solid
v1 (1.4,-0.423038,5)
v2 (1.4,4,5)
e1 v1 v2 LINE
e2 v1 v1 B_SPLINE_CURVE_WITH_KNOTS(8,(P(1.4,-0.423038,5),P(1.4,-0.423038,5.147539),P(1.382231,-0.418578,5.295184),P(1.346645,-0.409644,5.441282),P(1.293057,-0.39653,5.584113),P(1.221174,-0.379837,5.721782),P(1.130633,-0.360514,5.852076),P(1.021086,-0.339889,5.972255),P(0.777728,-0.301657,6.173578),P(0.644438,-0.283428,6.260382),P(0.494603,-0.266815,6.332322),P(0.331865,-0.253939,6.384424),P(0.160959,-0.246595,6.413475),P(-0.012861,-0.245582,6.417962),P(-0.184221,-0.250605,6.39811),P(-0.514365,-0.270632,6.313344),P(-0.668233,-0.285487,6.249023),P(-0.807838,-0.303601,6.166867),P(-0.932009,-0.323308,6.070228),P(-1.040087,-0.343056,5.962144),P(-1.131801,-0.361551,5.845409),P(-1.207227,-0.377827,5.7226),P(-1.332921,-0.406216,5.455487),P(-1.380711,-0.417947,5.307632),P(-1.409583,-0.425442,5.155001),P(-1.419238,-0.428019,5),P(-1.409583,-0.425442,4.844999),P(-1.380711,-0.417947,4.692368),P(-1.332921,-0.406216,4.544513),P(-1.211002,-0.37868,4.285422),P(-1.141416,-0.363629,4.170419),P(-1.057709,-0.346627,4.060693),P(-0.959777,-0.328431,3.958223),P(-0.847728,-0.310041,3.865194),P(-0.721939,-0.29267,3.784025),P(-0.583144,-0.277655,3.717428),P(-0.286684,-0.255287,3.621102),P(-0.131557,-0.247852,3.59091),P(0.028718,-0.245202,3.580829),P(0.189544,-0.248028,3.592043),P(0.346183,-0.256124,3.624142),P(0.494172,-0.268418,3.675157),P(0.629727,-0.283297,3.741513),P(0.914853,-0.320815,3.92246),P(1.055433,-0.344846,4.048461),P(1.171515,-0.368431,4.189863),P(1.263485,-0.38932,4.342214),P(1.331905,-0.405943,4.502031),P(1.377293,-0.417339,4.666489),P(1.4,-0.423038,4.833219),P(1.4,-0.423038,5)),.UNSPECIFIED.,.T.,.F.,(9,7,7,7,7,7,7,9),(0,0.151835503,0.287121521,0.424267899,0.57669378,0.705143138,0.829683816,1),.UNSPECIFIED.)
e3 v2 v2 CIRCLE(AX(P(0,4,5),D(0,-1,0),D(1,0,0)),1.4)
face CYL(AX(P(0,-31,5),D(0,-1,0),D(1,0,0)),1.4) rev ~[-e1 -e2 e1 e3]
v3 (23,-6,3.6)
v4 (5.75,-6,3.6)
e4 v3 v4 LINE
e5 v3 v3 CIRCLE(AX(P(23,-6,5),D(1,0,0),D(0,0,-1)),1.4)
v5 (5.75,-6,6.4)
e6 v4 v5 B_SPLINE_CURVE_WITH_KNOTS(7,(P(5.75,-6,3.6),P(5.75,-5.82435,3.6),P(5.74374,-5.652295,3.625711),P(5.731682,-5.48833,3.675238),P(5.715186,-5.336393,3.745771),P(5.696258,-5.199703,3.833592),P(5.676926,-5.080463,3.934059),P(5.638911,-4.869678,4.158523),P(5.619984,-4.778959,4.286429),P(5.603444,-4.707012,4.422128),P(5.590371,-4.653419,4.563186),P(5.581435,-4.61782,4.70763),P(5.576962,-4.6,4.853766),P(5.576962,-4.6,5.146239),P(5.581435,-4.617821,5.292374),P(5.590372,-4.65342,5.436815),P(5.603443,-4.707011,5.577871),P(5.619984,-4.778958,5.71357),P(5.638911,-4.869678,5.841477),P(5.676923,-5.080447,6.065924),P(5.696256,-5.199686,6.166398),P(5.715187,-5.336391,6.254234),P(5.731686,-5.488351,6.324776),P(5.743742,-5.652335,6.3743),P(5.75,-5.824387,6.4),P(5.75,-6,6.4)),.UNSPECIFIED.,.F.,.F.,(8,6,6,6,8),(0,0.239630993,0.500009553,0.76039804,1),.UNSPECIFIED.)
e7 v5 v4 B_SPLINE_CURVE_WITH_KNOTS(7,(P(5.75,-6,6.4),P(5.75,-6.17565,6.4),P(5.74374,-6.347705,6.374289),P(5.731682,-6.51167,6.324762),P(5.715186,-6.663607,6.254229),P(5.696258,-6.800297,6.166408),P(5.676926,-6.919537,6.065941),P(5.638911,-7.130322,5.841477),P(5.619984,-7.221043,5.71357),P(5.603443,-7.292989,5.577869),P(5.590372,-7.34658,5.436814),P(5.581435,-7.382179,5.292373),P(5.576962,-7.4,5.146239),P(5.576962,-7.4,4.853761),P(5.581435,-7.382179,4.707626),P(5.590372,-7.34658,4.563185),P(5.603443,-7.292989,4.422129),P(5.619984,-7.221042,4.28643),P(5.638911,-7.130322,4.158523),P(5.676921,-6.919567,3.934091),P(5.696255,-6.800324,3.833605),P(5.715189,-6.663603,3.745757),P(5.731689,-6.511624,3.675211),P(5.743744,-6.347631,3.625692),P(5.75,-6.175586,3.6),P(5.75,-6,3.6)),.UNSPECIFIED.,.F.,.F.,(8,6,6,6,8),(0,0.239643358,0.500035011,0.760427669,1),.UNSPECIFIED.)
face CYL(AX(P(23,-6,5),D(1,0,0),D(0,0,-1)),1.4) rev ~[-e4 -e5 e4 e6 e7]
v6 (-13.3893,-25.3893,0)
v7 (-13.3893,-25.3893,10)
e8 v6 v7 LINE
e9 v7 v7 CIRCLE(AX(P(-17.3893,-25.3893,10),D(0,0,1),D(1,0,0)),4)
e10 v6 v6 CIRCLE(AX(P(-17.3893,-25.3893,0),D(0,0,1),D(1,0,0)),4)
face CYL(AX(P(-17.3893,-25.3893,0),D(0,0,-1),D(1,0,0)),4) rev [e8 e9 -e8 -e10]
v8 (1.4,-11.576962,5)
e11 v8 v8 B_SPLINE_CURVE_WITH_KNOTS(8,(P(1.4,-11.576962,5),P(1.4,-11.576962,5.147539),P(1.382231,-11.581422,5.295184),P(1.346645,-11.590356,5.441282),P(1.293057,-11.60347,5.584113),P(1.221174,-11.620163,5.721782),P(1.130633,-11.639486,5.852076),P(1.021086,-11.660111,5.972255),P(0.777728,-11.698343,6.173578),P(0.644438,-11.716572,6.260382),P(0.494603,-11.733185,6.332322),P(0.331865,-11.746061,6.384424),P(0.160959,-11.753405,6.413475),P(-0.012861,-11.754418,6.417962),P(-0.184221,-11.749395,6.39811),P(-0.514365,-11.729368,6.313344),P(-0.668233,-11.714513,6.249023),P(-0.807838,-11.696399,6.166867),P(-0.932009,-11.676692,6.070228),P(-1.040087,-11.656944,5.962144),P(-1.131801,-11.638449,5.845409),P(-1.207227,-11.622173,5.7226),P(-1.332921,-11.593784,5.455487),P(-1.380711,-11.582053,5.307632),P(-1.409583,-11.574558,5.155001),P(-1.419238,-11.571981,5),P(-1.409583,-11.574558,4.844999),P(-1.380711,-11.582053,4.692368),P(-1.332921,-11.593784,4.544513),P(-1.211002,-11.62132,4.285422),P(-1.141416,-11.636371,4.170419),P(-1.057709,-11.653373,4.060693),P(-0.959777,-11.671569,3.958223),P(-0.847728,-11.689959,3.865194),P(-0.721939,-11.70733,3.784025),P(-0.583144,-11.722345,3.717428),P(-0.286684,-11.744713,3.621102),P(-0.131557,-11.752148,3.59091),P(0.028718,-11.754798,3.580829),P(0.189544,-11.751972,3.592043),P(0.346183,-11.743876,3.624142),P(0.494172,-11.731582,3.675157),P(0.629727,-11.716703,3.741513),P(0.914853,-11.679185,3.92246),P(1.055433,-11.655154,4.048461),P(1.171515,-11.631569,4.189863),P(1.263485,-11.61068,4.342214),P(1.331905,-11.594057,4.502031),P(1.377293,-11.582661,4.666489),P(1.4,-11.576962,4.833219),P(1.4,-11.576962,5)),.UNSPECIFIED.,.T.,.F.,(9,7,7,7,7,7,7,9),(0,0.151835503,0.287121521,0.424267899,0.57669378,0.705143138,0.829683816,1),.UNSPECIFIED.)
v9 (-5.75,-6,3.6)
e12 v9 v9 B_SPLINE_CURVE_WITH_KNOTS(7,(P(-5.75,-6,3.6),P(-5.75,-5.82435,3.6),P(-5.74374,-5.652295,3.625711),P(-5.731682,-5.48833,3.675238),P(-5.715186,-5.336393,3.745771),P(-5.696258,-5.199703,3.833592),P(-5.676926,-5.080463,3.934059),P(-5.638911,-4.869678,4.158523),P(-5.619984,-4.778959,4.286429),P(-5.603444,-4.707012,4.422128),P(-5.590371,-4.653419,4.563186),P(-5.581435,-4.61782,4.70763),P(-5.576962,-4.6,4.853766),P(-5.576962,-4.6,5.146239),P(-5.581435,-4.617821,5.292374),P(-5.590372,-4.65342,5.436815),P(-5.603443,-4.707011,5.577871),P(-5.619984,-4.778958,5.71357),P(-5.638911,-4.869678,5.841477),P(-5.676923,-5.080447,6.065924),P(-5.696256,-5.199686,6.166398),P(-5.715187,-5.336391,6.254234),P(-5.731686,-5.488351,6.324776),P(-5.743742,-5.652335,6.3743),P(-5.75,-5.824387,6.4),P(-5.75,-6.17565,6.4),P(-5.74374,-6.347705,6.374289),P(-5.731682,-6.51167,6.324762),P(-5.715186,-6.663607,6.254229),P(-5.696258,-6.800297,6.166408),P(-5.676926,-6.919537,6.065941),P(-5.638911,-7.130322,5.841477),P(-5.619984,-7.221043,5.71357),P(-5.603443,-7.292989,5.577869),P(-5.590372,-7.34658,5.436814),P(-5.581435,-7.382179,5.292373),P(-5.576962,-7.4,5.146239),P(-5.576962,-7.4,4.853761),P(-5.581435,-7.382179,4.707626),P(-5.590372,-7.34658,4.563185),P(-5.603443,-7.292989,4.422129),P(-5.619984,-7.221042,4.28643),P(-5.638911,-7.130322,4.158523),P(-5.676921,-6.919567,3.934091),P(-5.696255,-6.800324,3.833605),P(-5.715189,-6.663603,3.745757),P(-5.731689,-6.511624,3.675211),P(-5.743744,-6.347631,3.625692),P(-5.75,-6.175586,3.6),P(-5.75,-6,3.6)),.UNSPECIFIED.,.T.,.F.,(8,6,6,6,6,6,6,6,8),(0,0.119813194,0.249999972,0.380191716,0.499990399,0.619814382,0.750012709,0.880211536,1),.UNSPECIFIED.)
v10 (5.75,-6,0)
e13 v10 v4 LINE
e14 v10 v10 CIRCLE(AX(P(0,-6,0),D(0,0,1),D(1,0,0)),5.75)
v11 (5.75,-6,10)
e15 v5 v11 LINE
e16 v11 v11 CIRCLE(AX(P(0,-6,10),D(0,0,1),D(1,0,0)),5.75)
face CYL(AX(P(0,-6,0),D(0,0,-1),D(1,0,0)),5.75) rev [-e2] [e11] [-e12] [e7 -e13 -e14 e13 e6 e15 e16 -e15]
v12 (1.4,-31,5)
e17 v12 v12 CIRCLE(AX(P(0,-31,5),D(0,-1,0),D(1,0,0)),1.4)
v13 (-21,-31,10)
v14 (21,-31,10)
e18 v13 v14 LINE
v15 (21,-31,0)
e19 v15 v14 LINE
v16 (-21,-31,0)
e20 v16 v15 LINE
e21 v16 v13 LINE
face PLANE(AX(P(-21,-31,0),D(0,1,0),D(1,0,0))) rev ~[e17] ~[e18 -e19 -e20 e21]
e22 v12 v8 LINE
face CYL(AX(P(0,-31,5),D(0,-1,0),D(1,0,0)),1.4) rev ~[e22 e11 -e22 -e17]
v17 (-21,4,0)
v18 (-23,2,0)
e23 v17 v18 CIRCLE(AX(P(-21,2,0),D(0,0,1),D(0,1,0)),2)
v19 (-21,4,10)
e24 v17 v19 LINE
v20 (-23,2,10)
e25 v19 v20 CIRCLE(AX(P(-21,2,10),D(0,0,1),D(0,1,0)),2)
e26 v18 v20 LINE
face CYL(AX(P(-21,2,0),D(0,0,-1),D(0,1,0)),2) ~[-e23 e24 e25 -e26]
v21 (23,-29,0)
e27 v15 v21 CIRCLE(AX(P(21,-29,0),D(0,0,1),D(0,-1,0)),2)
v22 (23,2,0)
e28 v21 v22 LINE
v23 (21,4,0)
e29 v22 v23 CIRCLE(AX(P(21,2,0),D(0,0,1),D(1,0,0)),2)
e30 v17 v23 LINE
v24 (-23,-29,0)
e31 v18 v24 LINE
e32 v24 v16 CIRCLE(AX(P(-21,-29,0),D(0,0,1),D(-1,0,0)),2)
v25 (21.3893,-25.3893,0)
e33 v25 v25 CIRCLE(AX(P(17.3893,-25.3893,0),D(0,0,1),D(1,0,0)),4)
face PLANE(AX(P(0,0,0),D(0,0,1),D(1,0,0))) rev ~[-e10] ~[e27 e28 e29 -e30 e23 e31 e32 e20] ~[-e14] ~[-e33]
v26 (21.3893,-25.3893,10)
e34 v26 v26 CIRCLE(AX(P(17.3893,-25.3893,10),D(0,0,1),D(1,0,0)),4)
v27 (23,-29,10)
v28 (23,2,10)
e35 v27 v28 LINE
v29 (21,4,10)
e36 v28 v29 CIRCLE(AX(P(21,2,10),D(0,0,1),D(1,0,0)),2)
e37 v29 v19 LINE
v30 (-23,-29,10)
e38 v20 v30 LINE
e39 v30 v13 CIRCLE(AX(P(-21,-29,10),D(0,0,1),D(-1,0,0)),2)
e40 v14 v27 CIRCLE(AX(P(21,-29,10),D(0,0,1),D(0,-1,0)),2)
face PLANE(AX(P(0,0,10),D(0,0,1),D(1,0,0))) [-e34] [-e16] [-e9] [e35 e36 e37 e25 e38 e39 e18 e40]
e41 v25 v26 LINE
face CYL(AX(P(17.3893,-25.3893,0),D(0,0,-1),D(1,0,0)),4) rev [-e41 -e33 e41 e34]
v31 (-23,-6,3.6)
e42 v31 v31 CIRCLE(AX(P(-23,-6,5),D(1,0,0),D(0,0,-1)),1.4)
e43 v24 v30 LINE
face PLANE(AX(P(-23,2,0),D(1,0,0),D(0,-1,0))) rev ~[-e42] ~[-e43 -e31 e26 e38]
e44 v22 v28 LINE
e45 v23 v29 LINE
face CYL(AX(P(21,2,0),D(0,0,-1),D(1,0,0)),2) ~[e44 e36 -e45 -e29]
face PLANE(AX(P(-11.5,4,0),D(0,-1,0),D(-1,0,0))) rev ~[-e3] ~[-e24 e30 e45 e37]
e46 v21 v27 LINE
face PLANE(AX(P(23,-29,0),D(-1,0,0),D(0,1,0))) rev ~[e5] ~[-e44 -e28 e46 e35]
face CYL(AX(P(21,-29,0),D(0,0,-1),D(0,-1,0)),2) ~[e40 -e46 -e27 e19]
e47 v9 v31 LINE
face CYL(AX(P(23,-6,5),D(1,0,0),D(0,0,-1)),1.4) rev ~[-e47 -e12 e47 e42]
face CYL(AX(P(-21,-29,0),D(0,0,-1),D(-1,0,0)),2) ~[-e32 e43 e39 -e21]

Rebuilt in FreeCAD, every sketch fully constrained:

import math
import FreeCAD as App
import Part
import Sketcher

doc = App.newDocument("Part")
body = doc.addObject("PartDesign::Body", "Body")

# Sketch on XY plane
sketch1 = doc.addObject("Sketcher::SketchObject", "Sketch")
body.addObject(sketch1)
sketch1.AttachmentSupport = (doc.XY_Plane, [""])
sketch1.MapMode = "FlatFace"
sketch1.addGeometry([
    Part.LineSegment(App.Vector(-21, -31, 0), App.Vector(21, -31, 0)),  # 0
    Part.ArcOfCircle(Part.Circle(App.Vector(21, -29, 0), App.Vector(0, 0, 1), 2), math.radians(-90), math.radians(0)),  # 1
    Part.LineSegment(App.Vector(23, -29, 0), App.Vector(23, 2, 0)),  # 2
    Part.ArcOfCircle(Part.Circle(App.Vector(21, 2, 0), App.Vector(0, 0, 1), 2), math.radians(0), math.radians(90)),  # 3
    Part.LineSegment(App.Vector(21, 4, 0), App.Vector(-21, 4, 0)),  # 4
    Part.ArcOfCircle(Part.Circle(App.Vector(-21, 2, 0), App.Vector(0, 0, 1), 2), math.radians(90), math.radians(180)),  # 5
    Part.LineSegment(App.Vector(-23, 2, 0), App.Vector(-23, -29, 0)),  # 6
    Part.ArcOfCircle(Part.Circle(App.Vector(-21, -29, 0), App.Vector(0, 0, 1), 2), math.radians(180), math.radians(270)),  # 7
    Part.Circle(App.Vector(-17.3893, -25.3893, 0), App.Vector(0, 0, 1), 4),  # 8
    Part.Circle(App.Vector(17.3893, -25.3893, 0), App.Vector(0, 0, 1), 4),  # 9
    Part.Circle(App.Vector(0, -6, 0), App.Vector(0, 0, 1), 5.75),  # 10
], False)
sketch1.addConstraint([
    Sketcher.Constraint("Tangent", 0, 2, 1, 1),
    Sketcher.Constraint("Tangent", 1, 2, 2, 1),
    Sketcher.Constraint("Tangent", 2, 2, 3, 1),
    Sketcher.Constraint("Tangent", 3, 2, 4, 1),
    Sketcher.Constraint("Tangent", 4, 2, 5, 1),
    Sketcher.Constraint("Tangent", 5, 2, 6, 1),
    Sketcher.Constraint("Tangent", 6, 2, 7, 1),
    Sketcher.Constraint("Tangent", 7, 2, 0, 1),
    Sketcher.Constraint("Horizontal", 0),
    Sketcher.Constraint("Vertical", 2),
    Sketcher.Constraint("Horizontal", 4),
    Sketcher.Constraint("Vertical", 6),
    Sketcher.Constraint("Equal", 1, 3),
    Sketcher.Constraint("Equal", 3, 5),
    Sketcher.Constraint("Equal", 5, 7),
    Sketcher.Constraint("Equal", 8, 9),
    Sketcher.Constraint("Symmetric", 8, 3, 9, 3, -2),
    Sketcher.Constraint("PointOnObject", 10, 3, -2),
    Sketcher.Constraint("Diameter", 8, 8.0),
    Sketcher.Constraint("Radius", 1, 2.0),
    Sketcher.Constraint("Diameter", 10, 11.5),
    Sketcher.Constraint("DistanceY", -1, 1, 3, 3, 2.0),
    Sketcher.Constraint("DistanceY", 10, 3, 3, 3, 8.0),
    Sketcher.Constraint("DistanceY", 0, 2, 10, 3, 25.0),
    Sketcher.Constraint("DistanceX", 0, 1, 0, 2, 42.0),
    Sketcher.Constraint("DistanceX", -1, 1, 1, 3, 21.0),
    Sketcher.Constraint("DistanceX", 8, 3, -1, 1, 17.3893),
    Sketcher.Constraint("DistanceY", 8, 3, -1, 1, 25.3893),
])
pad1 = doc.addObject("PartDesign::Pad", "Pad")
body.addObject(pad1)
pad1.Profile = sketch1
pad1.Length = 10

# Sketch on YZ plane
sketch2 = doc.addObject("Sketcher::SketchObject", "Sketch001")
body.addObject(sketch2)
sketch2.AttachmentSupport = (doc.YZ_Plane, [""])
sketch2.MapMode = "FlatFace"
sketch2.AttachmentOffset = App.Placement(App.Vector(0, 0, 23), App.Rotation())
sketch2.addGeometry(Part.Circle(App.Vector(-6, 5, 0), App.Vector(0, 0, 1), 1.4), False)
sketch2.addConstraint([
    Sketcher.Constraint("Diameter", 0, 2.8),
    Sketcher.Constraint("DistanceX", 0, 3, -1, 1, 6.0),
    Sketcher.Constraint("DistanceY", -1, 1, 0, 3, 5.0),
])
pocket1 = doc.addObject("PartDesign::Pocket", "Pocket")
body.addObject(pocket1)
pocket1.Profile = sketch2
pocket1.Type = "ThroughAll"

# Sketch on XZ plane
sketch3 = doc.addObject("Sketcher::SketchObject", "Sketch002")
body.addObject(sketch3)
sketch3.AttachmentSupport = (doc.XZ_Plane, [""])
sketch3.MapMode = "FlatFace"
sketch3.AttachmentOffset = App.Placement(App.Vector(0, 0, 31), App.Rotation())
sketch3.addGeometry(Part.Circle(App.Vector(0, 5, 0), App.Vector(0, 0, 1), 1.4), False)
sketch3.addConstraint([
    Sketcher.Constraint("PointOnObject", 0, 3, -2),
    Sketcher.Constraint("Diameter", 0, 2.8),
    Sketcher.Constraint("DistanceY", -1, 1, 0, 3, 5.0),
])
pocket2 = doc.addObject("PartDesign::Pocket", "Pocket001")
body.addObject(pocket2)
pocket2.Profile = sketch3
pocket2.Type = "ThroughAll"

doc.recompute()
